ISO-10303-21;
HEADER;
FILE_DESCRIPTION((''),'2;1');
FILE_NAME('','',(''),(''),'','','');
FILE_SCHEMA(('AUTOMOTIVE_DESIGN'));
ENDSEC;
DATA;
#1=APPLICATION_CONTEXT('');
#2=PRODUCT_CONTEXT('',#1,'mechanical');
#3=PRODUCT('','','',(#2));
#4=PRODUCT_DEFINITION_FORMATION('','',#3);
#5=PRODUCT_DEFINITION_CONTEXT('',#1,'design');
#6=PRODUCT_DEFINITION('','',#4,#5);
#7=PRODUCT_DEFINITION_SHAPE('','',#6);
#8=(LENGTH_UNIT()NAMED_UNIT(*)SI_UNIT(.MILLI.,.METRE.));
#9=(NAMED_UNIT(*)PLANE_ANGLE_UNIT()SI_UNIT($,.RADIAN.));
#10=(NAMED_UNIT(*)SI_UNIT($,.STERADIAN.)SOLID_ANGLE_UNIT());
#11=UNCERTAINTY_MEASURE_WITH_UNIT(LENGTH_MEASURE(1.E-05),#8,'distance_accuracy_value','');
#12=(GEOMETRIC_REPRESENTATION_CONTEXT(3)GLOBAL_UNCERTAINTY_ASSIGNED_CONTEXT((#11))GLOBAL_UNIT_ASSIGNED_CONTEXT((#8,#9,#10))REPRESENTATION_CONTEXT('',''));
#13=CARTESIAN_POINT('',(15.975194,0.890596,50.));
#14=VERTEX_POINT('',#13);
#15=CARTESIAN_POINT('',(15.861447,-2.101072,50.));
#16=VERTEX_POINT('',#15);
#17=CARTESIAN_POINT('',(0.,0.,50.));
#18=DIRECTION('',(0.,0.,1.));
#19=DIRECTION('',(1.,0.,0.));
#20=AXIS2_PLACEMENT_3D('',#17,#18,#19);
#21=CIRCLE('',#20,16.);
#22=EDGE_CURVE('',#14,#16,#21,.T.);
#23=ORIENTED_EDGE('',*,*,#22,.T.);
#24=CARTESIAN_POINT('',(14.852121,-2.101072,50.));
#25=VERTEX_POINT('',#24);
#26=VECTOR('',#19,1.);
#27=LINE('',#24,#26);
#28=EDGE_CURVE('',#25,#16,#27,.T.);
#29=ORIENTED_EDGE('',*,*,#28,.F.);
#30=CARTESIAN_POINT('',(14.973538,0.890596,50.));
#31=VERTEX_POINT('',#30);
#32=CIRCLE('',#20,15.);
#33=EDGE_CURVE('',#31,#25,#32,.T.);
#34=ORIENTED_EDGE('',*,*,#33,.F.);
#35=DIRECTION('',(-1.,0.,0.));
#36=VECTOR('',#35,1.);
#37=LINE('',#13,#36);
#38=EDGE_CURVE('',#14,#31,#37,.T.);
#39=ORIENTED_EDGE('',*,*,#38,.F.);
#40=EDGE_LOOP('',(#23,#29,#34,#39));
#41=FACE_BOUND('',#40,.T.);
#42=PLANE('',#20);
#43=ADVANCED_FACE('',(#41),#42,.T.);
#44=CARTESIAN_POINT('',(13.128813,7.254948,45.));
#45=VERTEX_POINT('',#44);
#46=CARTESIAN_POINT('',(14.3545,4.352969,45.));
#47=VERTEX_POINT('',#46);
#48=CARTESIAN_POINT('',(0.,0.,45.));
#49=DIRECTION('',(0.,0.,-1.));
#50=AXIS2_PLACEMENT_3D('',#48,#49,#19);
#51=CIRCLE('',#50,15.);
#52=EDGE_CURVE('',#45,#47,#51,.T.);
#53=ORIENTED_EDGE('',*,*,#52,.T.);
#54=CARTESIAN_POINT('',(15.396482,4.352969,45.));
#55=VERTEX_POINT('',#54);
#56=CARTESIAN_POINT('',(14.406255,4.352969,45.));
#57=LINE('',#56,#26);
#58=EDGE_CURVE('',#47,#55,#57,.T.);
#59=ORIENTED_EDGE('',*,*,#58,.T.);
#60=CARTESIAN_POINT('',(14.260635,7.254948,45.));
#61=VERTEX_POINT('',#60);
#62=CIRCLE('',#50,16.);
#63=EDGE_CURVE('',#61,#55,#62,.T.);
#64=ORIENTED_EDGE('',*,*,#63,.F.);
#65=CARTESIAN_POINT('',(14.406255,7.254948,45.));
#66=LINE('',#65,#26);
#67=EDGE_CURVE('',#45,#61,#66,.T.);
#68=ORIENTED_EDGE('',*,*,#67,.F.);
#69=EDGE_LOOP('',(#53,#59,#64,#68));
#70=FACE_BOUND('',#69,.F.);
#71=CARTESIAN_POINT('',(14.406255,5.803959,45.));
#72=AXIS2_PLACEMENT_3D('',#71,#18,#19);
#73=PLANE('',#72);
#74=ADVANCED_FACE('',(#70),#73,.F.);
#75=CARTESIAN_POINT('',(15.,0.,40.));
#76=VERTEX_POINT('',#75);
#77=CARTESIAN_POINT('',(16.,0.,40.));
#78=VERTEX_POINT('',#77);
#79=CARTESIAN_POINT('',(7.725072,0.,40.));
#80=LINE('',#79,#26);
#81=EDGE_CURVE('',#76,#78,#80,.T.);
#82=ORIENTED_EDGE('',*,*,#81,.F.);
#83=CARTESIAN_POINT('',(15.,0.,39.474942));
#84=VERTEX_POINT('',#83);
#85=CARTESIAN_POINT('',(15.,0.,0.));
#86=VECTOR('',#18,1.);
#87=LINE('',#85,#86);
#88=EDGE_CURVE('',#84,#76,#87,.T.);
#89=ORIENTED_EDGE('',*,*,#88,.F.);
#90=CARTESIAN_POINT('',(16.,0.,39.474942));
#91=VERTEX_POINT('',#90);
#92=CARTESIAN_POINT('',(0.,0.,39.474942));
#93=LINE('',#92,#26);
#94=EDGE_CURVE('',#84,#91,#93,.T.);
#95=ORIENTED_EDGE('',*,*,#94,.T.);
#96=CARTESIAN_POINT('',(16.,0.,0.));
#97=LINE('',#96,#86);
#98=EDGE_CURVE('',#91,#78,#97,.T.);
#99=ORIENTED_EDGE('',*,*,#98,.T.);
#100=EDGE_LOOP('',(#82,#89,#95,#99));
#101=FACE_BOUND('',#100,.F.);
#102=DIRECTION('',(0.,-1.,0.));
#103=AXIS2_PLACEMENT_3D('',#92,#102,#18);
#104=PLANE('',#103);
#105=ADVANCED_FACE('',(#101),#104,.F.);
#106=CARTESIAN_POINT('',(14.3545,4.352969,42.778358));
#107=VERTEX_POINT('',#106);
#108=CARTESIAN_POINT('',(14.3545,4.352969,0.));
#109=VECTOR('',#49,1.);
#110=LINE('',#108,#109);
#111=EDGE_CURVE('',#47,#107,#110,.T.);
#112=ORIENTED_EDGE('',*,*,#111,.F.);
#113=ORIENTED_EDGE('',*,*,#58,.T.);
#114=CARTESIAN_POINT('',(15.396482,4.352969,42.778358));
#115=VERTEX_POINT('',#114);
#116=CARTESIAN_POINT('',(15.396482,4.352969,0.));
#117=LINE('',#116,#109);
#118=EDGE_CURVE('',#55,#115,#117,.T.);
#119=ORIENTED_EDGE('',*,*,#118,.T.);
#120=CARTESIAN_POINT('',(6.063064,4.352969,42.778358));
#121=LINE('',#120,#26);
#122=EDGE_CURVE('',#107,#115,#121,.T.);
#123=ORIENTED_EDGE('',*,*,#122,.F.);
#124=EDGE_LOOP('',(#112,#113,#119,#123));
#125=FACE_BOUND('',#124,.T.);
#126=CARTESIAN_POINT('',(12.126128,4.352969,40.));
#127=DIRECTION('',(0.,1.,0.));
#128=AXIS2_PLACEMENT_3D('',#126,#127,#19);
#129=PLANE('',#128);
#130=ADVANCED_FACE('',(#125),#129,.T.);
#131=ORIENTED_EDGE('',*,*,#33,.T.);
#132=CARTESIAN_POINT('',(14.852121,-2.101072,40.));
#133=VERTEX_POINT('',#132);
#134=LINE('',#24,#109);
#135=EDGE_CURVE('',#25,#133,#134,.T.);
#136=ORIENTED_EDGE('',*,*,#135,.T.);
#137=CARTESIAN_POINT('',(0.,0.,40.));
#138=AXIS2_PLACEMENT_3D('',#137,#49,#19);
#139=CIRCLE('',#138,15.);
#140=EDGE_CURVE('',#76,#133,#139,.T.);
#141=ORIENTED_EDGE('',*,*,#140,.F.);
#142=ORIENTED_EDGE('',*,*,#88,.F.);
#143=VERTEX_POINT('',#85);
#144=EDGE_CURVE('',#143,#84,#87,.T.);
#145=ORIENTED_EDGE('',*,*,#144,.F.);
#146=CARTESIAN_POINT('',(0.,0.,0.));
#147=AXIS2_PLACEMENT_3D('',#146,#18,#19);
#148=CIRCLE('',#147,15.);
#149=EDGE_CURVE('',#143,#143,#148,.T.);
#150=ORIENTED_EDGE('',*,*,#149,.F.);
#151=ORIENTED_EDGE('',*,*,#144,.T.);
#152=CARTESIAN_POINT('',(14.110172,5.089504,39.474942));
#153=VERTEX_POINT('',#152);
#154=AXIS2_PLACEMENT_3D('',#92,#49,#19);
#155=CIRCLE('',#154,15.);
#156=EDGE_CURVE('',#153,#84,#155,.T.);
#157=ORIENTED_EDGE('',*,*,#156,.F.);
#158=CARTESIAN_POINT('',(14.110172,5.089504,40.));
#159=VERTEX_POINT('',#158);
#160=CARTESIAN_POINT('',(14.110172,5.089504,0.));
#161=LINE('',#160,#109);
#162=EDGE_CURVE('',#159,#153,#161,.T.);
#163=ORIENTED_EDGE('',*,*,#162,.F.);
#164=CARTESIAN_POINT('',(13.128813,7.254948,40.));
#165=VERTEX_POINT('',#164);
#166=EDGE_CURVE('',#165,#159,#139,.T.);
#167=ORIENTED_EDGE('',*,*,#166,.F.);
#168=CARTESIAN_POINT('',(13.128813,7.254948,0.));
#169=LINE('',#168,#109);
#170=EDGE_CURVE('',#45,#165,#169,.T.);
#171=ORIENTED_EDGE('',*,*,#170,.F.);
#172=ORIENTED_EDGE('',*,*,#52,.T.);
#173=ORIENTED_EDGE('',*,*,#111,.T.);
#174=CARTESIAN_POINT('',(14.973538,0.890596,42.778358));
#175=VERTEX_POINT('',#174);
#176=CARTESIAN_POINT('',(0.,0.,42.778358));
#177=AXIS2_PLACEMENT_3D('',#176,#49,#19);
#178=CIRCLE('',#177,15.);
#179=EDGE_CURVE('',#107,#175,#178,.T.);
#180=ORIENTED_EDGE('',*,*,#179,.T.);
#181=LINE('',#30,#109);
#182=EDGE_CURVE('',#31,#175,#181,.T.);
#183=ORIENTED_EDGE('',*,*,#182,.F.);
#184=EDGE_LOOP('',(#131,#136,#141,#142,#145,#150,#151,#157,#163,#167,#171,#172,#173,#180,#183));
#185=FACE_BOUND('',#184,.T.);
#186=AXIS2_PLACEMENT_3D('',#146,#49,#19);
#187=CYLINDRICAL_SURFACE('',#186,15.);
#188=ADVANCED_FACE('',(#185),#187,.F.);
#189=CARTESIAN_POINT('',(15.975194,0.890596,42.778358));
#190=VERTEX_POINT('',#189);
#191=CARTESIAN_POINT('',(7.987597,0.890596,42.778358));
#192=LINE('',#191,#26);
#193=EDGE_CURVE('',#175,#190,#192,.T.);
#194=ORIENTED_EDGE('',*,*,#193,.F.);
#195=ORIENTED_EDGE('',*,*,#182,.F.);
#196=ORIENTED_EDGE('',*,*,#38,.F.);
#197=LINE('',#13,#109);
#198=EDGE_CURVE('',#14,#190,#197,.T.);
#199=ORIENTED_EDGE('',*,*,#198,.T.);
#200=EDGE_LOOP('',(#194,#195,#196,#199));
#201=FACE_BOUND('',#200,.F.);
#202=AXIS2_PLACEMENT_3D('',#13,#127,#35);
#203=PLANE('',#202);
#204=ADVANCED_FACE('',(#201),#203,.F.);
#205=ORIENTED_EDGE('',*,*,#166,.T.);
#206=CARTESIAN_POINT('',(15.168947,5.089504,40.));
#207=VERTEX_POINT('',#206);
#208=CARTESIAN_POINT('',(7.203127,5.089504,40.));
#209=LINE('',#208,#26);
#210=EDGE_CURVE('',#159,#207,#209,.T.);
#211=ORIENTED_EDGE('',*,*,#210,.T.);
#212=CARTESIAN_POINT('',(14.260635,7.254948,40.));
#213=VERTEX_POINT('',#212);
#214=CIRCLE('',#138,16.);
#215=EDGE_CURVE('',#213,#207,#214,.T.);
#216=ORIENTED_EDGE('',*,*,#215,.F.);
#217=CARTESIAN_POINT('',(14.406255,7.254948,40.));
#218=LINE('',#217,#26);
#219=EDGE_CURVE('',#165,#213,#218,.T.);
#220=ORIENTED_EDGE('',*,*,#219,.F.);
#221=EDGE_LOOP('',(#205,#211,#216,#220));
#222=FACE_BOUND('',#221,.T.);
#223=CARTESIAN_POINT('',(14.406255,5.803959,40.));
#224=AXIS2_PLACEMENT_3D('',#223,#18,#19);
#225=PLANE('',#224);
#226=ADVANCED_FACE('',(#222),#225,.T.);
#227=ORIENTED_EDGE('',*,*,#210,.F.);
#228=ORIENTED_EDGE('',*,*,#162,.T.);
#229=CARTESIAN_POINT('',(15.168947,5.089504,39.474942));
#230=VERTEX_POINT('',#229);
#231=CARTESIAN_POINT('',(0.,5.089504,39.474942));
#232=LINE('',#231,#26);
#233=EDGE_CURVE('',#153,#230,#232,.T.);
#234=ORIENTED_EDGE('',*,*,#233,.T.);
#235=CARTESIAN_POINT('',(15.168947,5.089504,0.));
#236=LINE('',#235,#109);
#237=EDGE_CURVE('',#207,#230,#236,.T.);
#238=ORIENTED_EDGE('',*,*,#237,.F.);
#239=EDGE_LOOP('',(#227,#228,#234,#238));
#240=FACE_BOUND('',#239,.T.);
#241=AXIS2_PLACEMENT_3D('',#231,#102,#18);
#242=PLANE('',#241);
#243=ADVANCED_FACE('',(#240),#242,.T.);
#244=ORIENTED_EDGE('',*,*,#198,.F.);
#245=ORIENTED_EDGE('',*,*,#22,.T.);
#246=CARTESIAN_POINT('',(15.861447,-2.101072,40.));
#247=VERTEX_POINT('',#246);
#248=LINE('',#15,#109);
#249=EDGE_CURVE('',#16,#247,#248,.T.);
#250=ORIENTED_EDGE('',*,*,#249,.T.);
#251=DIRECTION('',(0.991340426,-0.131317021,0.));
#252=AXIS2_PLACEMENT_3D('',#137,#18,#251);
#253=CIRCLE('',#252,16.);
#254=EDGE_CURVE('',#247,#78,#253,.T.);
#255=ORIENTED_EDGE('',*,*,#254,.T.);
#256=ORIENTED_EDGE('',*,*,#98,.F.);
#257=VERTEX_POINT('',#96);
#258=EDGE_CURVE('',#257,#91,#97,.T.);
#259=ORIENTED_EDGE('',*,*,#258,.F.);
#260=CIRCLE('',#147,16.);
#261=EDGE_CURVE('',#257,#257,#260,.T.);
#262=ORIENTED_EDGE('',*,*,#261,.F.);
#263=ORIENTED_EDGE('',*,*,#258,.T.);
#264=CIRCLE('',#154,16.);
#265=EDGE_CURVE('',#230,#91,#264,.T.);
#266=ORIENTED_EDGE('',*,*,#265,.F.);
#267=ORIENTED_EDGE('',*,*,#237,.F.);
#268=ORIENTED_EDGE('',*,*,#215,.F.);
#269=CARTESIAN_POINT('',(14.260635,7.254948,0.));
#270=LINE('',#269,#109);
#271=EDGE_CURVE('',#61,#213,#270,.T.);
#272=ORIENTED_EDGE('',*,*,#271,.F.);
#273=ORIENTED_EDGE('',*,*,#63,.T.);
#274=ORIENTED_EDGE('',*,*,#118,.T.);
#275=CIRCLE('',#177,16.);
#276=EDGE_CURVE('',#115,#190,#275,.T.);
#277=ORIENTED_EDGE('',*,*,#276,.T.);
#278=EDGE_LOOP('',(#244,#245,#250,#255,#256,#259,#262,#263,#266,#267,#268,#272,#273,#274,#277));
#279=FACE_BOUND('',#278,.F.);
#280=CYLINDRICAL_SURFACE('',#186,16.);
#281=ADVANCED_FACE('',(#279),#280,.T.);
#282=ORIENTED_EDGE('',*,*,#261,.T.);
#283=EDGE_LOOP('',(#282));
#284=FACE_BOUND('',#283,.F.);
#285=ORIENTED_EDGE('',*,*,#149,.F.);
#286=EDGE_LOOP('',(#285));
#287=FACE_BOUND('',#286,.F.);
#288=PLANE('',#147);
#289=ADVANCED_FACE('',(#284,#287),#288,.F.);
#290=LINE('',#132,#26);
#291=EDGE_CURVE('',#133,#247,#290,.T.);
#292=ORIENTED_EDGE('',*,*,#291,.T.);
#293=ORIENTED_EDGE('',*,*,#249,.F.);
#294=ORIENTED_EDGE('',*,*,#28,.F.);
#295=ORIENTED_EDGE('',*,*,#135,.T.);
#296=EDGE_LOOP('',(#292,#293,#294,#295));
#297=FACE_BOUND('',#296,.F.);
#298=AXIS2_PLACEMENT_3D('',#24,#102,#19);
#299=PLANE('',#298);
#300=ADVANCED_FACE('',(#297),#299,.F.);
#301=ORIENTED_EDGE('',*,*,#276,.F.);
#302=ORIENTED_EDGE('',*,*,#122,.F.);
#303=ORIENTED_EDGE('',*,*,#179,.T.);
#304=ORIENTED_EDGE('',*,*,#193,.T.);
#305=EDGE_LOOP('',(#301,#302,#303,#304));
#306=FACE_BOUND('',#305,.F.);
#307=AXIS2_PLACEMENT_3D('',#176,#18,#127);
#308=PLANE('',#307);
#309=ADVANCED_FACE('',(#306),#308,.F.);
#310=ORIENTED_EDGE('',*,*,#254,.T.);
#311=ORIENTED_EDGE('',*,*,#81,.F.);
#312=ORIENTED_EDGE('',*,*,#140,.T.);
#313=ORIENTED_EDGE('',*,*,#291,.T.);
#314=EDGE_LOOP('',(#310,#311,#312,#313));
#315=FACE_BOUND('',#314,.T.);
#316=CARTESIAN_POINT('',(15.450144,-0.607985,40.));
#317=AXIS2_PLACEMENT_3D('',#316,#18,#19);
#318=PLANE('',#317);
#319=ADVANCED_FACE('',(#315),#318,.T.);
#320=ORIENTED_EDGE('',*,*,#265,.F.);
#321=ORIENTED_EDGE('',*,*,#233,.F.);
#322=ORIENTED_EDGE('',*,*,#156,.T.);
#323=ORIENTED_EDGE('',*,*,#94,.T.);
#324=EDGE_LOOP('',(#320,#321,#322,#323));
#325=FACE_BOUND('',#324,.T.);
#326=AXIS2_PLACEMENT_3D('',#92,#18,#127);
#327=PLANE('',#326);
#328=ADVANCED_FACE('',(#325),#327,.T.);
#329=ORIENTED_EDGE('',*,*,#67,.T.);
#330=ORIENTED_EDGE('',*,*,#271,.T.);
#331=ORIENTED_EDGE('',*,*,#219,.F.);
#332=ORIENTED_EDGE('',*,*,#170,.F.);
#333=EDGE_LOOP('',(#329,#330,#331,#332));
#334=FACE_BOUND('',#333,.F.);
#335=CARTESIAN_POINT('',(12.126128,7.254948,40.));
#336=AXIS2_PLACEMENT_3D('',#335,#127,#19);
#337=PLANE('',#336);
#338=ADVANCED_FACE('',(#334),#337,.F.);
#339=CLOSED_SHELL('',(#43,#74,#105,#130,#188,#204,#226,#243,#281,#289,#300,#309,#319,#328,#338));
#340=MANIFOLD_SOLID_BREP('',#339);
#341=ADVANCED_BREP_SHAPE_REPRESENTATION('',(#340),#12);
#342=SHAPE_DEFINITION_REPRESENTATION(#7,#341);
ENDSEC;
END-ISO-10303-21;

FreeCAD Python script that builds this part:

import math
import FreeCAD as App
import Part
import Sketcher
from FreeCAD import Vector
Q = App.Units.Quantity


def add_polygon(sketch, points):
    """Adds a closed chain of lines whose ends are joined by coincident constraints."""
    first, n = sketch.GeometryCount, len(points)
    for a, b in zip(points, points[1:] + points[:1]):
        sketch.addGeometry(Part.LineSegment(App.Vector(*a, 0), App.Vector(*b, 0)), False)
    for i in range(n):
        sketch.addConstraint(Sketcher.Constraint("Coincident", first + i, 2, first + (i + 1) % n, 1))

doc = App.newDocument("Part")
body = doc.addObject("PartDesign::Body", "Body")

# Sketch on XY plane
sketch1 = doc.addObject("Sketcher::SketchObject", "Sketch")
body.addObject(sketch1)
sketch1.AttachmentSupport = (doc.XY_Plane, [""])
sketch1.MapMode = "FlatFace"
sketch1.addGeometry(Part.Circle(Vector(0, 0, 0), Vector(0, 0, 1), 16), False)
sketch1.addGeometry(Part.Circle(Vector(0, 0, 0), Vector(0, 0, 1), 15), False)
sketch1.addConstraint(Sketcher.Constraint("Coincident", 0, 3, -1, 1))
sketch1.addConstraint(Sketcher.Constraint("Coincident", 1, 3, -1, 1))
sketch1.addConstraint(Sketcher.Constraint("Diameter", 0, Q("32 mm")))
sketch1.addConstraint(Sketcher.Constraint("Diameter", 1, Q("30 mm")))
pad1 = doc.addObject("PartDesign::Pad", "Pad")
body.addObject(pad1)
pad1.Profile = sketch1
pad1.Length = 50

# Sketch on XY plane
sketch2 = doc.addObject("Sketcher::SketchObject", "Sketch001")
body.addObject(sketch2)
sketch2.AttachmentSupport = (doc.XY_Plane, [""])
sketch2.MapMode = "FlatFace"
sketch2.AttachmentOffset = App.Placement(Vector(0, 0, 50), App.Rotation())
sketch2.addGeometry(Part.LineSegment(Vector(16, 0.9, 0), Vector(15, 0.9, 0)), False)
sketch2.addGeometry(Part.ArcOfCircle(Part.Circle(Vector(0, 0, 0), Vector(0, 0, 1), 15), math.radians(0), math.radians(3.4)), False)
sketch2.addGeometry(Part.ArcOfCircle(Part.Circle(Vector(0, 0, 0), Vector(0, 0, 1), 15), math.radians(-8.05), math.radians(0)), False)
sketch2.addGeometry(Part.LineSegment(Vector(14.9, -2.1, 0), Vector(15.9, -2.1, 0)), False)
sketch2.addGeometry(Part.ArcOfCircle(Part.Circle(Vector(0, 0, 0), Vector(0, 0, 1), 16), math.radians(-7.55), math.radians(0)), False)
sketch2.addGeometry(Part.ArcOfCircle(Part.Circle(Vector(0, 0, 0), Vector(0, 0, 1), 16), math.radians(0), math.radians(3.19)), False)
sketch2.addConstraint(Sketcher.Constraint("Coincident", 0, 2, 1, 2))
sketch2.addConstraint(Sketcher.Constraint("Tangent", 1, 1, 2, 2))
sketch2.addConstraint(Sketcher.Constraint("Coincident", 2, 1, 3, 1))
sketch2.addConstraint(Sketcher.Constraint("Coincident", 3, 2, 4, 1))
sketch2.addConstraint(Sketcher.Constraint("Tangent", 4, 2, 5, 1))
sketch2.addConstraint(Sketcher.Constraint("Coincident", 5, 2, 0, 1))
sketch2.addConstraint(Sketcher.Constraint("Horizontal", 0))
sketch2.addConstraint(Sketcher.Constraint("Horizontal", 3))
sketch2.addConstraint(Sketcher.Constraint("Coincident", 1, 3, -1, 1))
sketch2.addConstraint(Sketcher.Constraint("Coincident", 4, 3, -1, 1))
sketch2.addConstraint(Sketcher.Constraint("Equal", 1, 2))
sketch2.addConstraint(Sketcher.Constraint("Equal", 4, 5))
sketch2.addConstraint(Sketcher.Constraint("PointOnObject", 1, 1, -1))
sketch2.addConstraint(Sketcher.Constraint("PointOnObject", 4, 2, -1))
sketch2.addConstraint(Sketcher.Constraint("Radius", 1, Q("15 mm")))
sketch2.addConstraint(Sketcher.Constraint("Radius", 4, Q("16 mm")))
sketch2.addConstraint(Sketcher.Constraint("DistanceX", 3, 1, 3, 2, Q("1.009326 mm")))
sketch2.addConstraint(Sketcher.Constraint("DistanceY", 2, 1, 0, 2, Q("2.991669 mm")))
pocket1 = doc.addObject("PartDesign::Pocket", "Pocket")
body.addObject(pocket1)
pocket1.Profile = sketch2
pocket1.Length = 10

# Sketch on XY plane
sketch3 = doc.addObject("Sketcher::SketchObject", "Sketch002")
body.addObject(sketch3)
sketch3.AttachmentSupport = (doc.XY_Plane, [""])
sketch3.MapMode = "FlatFace"
sketch3.AttachmentOffset = App.Placement(Vector(0, 0, 40), App.Rotation())
add_polygon(sketch3, [(12.1, 7.3), (12.1, 4.4), (16.7, 4.4), (16.7, 7.3)])  # lines 0-3
sketch3.addConstraint(Sketcher.Constraint("Vertical", 0))
sketch3.addConstraint(Sketcher.Constraint("Horizontal", 1))
sketch3.addConstraint(Sketcher.Constraint("Vertical", 2))
sketch3.addConstraint(Sketcher.Constraint("Horizontal", 3))
sketch3.addConstraint(Sketcher.Constraint("DistanceY", 0, 2, 0, 1, Q("2.901979 mm")))
sketch3.addConstraint(Sketcher.Constraint("DistanceX", 1, 1, 1, 2, Q("4.560254 mm")))
sketch3.addConstraint(Sketcher.Constraint("DistanceX", -1, 1, 0, 2, Q("12.126128 mm")))
sketch3.addConstraint(Sketcher.Constraint("DistanceY", -1, 1, 0, 2, Q("4.352969 mm")))
pocket2 = doc.addObject("PartDesign::Pocket", "Pocket001")
body.addObject(pocket2)
pocket2.Profile = sketch3
pocket2.Length = 5
pocket2.Reversed = True

# Sketch on YZ plane
sketch4 = doc.addObject("Sketcher::SketchObject", "Sketch003")
body.addObject(sketch4)
sketch4.AttachmentSupport = (doc.YZ_Plane, [""])
sketch4.MapMode = "FlatFace"
add_polygon(sketch4, [(0, 42.8), (0, 39.5), (5.1, 39.5), (5.1, 42.8)])  # lines 0-3
sketch4.addConstraint(Sketcher.Constraint("Vertical", 0))
sketch4.addConstraint(Sketcher.Constraint("Horizontal", 1))
sketch4.addConstraint(Sketcher.Constraint("Vertical", 2))
sketch4.addConstraint(Sketcher.Constraint("Horizontal", 3))
sketch4.addConstraint(Sketcher.Constraint("PointOnObject", 0, 2, -2))
sketch4.addConstraint(Sketcher.Constraint("DistanceX", 1, 1, 1, 2, Q("5.089504 mm")))
sketch4.addConstraint(Sketcher.Constraint("DistanceY", 0, 2, 0, 1, Q("3.303416 mm")))
sketch4.addConstraint(Sketcher.Constraint("DistanceY", -1, 1, 0, 2, Q("39.474942 mm")))
pocket3 = doc.addObject("PartDesign::Pocket", "Pocket002")
body.addObject(pocket3)
pocket3.Profile = sketch4
pocket3.Length = 49.4
pocket3.Reversed = True

doc.recompute()
